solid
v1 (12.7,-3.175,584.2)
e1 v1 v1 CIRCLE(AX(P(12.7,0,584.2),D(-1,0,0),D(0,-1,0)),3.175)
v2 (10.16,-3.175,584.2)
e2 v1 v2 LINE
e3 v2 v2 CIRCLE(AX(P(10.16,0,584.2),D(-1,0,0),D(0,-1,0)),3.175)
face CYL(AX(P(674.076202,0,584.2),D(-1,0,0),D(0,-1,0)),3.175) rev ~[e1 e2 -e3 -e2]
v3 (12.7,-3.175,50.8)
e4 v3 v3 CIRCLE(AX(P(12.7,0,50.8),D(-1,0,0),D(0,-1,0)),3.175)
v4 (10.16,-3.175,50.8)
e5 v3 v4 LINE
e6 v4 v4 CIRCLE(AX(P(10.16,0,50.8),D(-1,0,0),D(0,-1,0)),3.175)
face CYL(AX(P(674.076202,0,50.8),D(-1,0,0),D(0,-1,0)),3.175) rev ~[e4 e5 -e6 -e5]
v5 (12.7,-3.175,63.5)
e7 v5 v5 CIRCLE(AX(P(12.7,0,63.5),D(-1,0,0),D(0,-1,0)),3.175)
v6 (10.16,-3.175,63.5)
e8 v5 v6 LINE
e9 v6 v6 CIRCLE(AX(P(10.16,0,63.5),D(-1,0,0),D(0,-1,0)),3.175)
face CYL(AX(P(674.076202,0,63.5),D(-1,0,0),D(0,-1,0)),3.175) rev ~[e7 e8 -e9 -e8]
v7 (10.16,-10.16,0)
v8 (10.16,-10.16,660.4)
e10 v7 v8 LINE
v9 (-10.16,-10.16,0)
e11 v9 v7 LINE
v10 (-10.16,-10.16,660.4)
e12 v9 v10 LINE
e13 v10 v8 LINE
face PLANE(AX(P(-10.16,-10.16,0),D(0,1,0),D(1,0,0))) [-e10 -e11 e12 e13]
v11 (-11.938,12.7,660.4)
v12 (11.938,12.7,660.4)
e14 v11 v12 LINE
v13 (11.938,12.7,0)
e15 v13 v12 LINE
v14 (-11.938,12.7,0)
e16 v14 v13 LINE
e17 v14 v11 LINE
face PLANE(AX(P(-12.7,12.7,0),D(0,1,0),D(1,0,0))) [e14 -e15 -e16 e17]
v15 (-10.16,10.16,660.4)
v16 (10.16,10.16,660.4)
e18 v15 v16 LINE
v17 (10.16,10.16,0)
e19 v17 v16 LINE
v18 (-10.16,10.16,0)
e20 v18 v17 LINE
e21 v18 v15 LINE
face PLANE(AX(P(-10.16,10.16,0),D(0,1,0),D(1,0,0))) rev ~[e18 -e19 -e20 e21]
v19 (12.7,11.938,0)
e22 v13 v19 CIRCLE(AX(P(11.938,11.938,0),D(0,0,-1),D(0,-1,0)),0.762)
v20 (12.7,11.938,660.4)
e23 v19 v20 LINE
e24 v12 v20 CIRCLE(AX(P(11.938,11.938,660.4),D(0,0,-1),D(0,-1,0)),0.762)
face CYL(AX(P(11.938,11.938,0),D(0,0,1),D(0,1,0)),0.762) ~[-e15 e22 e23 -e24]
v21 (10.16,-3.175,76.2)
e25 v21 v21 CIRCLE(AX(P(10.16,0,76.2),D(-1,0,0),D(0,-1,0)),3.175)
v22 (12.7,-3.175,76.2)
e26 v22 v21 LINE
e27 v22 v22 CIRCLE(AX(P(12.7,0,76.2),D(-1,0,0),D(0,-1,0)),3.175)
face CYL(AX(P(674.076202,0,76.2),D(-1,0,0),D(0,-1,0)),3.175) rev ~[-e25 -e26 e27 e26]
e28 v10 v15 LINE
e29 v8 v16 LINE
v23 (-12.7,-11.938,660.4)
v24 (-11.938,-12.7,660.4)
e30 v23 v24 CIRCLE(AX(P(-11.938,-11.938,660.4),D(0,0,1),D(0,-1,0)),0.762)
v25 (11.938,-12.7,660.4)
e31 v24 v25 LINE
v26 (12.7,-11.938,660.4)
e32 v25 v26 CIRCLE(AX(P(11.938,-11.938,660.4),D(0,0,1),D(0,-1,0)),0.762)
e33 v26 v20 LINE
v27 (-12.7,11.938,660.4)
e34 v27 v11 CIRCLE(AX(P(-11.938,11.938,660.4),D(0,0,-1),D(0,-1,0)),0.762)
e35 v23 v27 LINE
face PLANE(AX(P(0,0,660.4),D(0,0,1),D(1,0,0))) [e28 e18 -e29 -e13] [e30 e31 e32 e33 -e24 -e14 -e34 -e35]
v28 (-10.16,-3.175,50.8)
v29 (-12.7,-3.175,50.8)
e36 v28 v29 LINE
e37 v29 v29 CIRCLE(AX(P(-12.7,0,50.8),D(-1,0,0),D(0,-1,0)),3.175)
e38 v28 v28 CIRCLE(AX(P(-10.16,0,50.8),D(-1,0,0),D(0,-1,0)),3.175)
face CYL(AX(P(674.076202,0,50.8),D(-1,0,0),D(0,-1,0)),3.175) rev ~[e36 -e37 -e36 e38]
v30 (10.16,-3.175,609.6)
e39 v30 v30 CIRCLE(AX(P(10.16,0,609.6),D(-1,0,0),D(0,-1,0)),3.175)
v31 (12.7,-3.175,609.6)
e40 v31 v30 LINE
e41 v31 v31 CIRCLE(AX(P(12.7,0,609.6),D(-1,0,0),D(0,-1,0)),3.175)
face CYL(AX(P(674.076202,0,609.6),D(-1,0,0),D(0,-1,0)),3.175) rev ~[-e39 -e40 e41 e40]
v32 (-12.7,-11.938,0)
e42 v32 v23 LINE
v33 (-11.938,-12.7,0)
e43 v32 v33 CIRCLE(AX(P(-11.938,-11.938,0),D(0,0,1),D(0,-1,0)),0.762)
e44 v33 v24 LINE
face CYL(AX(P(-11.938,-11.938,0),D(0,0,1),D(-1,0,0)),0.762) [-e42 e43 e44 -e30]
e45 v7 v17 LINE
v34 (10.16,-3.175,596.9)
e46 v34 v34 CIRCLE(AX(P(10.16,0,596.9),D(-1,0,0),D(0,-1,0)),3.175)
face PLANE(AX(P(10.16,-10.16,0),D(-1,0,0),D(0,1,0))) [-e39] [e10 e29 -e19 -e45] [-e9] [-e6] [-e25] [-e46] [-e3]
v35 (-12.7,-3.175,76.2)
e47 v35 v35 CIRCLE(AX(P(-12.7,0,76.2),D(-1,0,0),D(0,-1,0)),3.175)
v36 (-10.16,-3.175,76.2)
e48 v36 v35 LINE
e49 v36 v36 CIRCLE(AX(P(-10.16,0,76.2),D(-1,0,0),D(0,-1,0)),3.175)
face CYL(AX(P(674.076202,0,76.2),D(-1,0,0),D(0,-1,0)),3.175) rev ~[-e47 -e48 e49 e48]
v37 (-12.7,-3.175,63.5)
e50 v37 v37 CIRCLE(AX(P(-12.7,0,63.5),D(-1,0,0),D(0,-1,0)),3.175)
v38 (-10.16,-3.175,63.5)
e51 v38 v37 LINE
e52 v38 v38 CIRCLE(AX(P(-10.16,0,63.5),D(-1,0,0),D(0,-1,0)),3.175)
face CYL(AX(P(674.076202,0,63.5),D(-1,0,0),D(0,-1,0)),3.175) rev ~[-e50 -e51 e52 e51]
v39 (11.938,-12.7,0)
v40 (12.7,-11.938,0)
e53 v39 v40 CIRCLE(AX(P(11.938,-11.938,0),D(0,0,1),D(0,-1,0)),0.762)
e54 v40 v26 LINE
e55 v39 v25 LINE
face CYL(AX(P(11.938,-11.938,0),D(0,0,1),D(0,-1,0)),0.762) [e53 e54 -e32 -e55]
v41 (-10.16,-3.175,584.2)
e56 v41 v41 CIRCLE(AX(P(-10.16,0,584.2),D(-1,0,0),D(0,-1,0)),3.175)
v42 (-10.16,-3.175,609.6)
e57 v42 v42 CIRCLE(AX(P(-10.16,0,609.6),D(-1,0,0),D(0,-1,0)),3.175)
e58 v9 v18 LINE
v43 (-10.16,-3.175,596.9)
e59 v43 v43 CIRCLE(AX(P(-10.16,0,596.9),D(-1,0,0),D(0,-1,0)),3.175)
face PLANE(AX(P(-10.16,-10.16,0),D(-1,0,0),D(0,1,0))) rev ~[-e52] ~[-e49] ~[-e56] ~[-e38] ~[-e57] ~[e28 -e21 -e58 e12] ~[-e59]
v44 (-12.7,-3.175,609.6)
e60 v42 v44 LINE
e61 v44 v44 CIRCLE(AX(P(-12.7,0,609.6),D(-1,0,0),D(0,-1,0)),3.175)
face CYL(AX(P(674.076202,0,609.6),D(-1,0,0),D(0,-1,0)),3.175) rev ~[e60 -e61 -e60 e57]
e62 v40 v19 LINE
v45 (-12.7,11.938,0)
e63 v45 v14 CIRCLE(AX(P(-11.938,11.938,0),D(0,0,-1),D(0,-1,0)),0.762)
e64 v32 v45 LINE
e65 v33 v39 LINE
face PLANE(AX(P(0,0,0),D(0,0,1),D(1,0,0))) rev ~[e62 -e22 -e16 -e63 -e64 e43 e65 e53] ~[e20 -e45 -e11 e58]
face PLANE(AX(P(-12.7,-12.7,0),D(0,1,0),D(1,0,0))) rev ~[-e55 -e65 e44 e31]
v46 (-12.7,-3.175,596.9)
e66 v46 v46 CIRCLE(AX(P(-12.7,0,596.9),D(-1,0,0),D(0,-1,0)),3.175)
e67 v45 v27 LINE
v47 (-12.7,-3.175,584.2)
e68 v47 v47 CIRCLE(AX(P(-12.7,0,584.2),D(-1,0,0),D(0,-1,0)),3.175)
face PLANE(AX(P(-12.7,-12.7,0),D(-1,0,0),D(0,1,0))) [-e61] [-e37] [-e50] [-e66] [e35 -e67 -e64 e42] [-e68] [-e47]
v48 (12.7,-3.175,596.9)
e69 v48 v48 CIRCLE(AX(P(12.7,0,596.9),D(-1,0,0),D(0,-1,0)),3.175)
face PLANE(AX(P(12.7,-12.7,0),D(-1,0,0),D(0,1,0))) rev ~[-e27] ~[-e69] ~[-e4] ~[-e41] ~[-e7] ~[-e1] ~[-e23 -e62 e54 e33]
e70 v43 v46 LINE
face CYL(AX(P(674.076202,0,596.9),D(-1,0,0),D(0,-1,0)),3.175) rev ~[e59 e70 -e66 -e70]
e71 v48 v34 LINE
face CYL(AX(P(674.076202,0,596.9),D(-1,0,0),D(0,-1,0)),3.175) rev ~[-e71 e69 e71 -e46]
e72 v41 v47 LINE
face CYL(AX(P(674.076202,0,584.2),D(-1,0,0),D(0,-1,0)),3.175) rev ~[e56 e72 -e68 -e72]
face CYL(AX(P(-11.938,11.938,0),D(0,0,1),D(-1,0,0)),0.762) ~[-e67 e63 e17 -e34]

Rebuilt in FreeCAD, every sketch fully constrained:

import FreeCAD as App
import Part
import Sketcher
Q = App.Units.Quantity


def edges_at(feature, points):
    """Names of the edges that pass closest to the given points."""
    edges = feature.Shape.Edges
    near = lambda p: min(range(len(edges)), key=lambda i: edges[i].distToShape(Part.Vertex(*p))[0])
    return sorted({f"Edge{near(p) + 1}" for p in points})


def add_polygon(sketch, points):
    """Adds a closed chain of lines whose ends are joined by coincident constraints."""
    first, n = sketch.GeometryCount, len(points)
    for a, b in zip(points, points[1:] + points[:1]):
        sketch.addGeometry(Part.LineSegment(App.Vector(*a, 0), App.Vector(*b, 0)), False)
    for i in range(n):
        sketch.addConstraint(Sketcher.Constraint("Coincident", first + i, 2, first + (i + 1) % n, 1))

doc = App.newDocument("Part")
body = doc.addObject("PartDesign::Body", "Body")

# Sketch on XY plane
sketch1 = body.newObject("Sketcher::SketchObject", "Sketch")
sketch1.AttachmentSupport = (doc.getObject("XY_Plane"), [""])
sketch1.MapMode = "FlatFace"
add_polygon(sketch1, [(-13, 13), (-13, -13), (13, -13), (13, 13)])  # lines 0-3
add_polygon(sketch1, [(10, -10), (-10, -10), (-10, 10), (10, 10)])  # lines 4-7
sketch1.addConstraint([
    Sketcher.Constraint("Vertical", 0),
    Sketcher.Constraint("Horizontal", 1),
    Sketcher.Constraint("Vertical", 2),
    Sketcher.Constraint("Horizontal", 3),
    Sketcher.Constraint("Horizontal", 4),
    Sketcher.Constraint("Vertical", 5),
    Sketcher.Constraint("Horizontal", 6),
    Sketcher.Constraint("Vertical", 7),
    Sketcher.Constraint("Symmetric", 0, 2, 2, 2, -1, 1),
    Sketcher.Constraint("Symmetric", 4, 2, 6, 2, -1, 1),
    Sketcher.Constraint("Equal", 3, 0),
    Sketcher.Constraint("Equal", 6, 5),
    Sketcher.Constraint("DistanceX", 1, 1, 1, 2, Q("1 in")),
    Sketcher.Constraint("DistanceX", 4, 2, 4, 1, Q("0.8 in")),
])
pad1 = body.newObject("PartDesign::Pad", "Pad")
pad1.Profile = sketch1
pad1.Length = Q("26 in")

# Sketch on YZ plane
sketch2 = body.newObject("Sketcher::SketchObject", "Sketch001")
sketch2.AttachmentSupport = (doc.getObject("YZ_Plane"), [""])
sketch2.MapMode = "FlatFace"
sketch2.AttachmentOffset = App.Placement(App.Vector(0, 0, 0.5 * 25.4), App.Rotation())
sketch2.addGeometry([
    Part.Circle(App.Vector(0, 609.6, 0), App.Vector(0, 0, 1), 3.2),  # 0
    Part.Circle(App.Vector(0, 596.9, 0), App.Vector(0, 0, 1), 3.2),  # 1
    Part.Circle(App.Vector(0, 584.2, 0), App.Vector(0, 0, 1), 3.2),  # 2
    Part.Circle(App.Vector(0, 76.2, 0), App.Vector(0, 0, 1), 3.2),  # 3
    Part.Circle(App.Vector(0, 63.5, 0), App.Vector(0, 0, 1), 3.2),  # 4
    Part.Circle(App.Vector(0, 50.8, 0), App.Vector(0, 0, 1), 3.2),  # 5
], False)
sketch2.addConstraint([
    Sketcher.Constraint("Equal", 0, 1),
    Sketcher.Constraint("Equal", 1, 2),
    Sketcher.Constraint("Equal", 2, 3),
    Sketcher.Constraint("Equal", 3, 4),
    Sketcher.Constraint("Equal", 4, 5),
    Sketcher.Constraint("PointOnObject", 0, 3, -2),
    Sketcher.Constraint("PointOnObject", 1, 3, -2),
    Sketcher.Constraint("PointOnObject", 2, 3, -2),
    Sketcher.Constraint("PointOnObject", 3, 3, -2),
    Sketcher.Constraint("PointOnObject", 4, 3, -2),
    Sketcher.Constraint("PointOnObject", 5, 3, -2),
    Sketcher.Constraint("Diameter", 0, Q("0.25 in")),
    Sketcher.Constraint("DistanceY", -1, 1, 0, 3, Q("24 in")),
    Sketcher.Constraint("DistanceY", -1, 1, 2, 3, Q("23 in")),
    Sketcher.Constraint("DistanceY", -1, 1, 3, 3, Q("3 in")),
    Sketcher.Constraint("DistanceY", -1, 1, 5, 3, Q("2 in")),
    Sketcher.Constraint("DistanceY", 4, 3, 1, 3, Q("21 in")),
    Sketcher.Constraint("DistanceY", -1, 1, 1, 3, Q("23.5 in")),
])
doc.recompute()
hole = body.newObject("PartDesign::Hole", "Hole")
hole.Profile = sketch2
hole.ThreadType = "None"
hole.Diameter = Q("0.25 in")
hole.DepthType = "ThroughAll"
doc.recompute()

fillet = body.newObject("PartDesign::Fillet", "Fillet")
fillet.Base = (hole, edges_at(hole, [
    (12.7, 12.7, 330.2),
    (-12.7, 12.7, 330.2),
    (12.7, -12.7, 330.2),
    (-12.7, -12.7, 330.2),
]))
fillet.Radius = Q("0.03 in")

doc.recompute()
